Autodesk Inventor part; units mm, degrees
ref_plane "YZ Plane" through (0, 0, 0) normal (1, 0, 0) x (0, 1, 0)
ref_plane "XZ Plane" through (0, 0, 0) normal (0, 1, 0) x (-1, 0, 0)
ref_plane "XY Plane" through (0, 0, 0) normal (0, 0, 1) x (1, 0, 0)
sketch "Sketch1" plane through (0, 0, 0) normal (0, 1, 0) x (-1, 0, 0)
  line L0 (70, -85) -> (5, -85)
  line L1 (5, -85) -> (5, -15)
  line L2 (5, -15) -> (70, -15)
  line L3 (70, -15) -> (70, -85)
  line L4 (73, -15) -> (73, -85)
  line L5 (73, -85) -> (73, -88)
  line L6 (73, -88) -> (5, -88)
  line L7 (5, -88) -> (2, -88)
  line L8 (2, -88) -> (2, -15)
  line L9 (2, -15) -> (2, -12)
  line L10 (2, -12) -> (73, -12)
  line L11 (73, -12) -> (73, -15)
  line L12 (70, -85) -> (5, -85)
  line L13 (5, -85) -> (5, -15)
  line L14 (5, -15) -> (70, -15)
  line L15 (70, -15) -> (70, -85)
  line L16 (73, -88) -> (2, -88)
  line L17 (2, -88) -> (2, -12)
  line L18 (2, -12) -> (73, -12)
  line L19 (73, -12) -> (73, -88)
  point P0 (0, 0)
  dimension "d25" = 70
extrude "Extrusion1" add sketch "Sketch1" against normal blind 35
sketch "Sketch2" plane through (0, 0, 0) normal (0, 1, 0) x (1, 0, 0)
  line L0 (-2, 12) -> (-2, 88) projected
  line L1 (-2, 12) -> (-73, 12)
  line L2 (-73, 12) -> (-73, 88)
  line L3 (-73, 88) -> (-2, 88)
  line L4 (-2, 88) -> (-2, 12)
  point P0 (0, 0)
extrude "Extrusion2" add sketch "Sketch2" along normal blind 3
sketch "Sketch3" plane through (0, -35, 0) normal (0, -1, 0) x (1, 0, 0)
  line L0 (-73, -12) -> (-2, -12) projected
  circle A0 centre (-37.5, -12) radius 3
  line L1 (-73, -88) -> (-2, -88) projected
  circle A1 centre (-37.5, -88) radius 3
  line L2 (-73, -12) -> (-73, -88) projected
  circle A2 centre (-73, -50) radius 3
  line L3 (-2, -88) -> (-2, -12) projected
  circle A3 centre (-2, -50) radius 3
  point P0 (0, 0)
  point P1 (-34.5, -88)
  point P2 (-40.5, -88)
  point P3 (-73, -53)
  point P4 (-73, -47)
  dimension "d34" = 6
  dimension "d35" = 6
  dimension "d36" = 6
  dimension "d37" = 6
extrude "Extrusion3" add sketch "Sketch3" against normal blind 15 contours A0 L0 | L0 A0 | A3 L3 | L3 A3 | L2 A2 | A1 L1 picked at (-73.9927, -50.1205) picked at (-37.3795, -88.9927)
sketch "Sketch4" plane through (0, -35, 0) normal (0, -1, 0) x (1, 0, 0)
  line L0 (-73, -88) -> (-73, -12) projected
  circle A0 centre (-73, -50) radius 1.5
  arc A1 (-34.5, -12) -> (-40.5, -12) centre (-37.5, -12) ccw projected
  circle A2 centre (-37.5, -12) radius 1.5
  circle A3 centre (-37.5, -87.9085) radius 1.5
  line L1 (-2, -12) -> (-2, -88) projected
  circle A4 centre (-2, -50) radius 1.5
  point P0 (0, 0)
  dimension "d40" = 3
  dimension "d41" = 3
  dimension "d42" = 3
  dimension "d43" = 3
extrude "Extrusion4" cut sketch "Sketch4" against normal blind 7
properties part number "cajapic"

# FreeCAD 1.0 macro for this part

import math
import FreeCAD as App
import Part
import Sketcher

V = App.Vector

doc = App.newDocument("Part")
body = doc.addObject("PartDesign::Body", "Body")

# Sketch on XZ plane
sketch1 = body.newObject("Sketcher::SketchObject", "Sketch")
sketch1.AttachmentSupport = (doc.getObject("XZ_Plane"), [""])
sketch1.MapMode = "FlatFace"
sketch1.addGeometry([
    Part.LineSegment(V(-73, -88, 0), V(-73, -12, 0)),  # 0
    Part.LineSegment(V(-73, -12, 0), V(-2, -12, 0)),  # 1
    Part.LineSegment(V(-2, -12, 0), V(-2, -88, 0)),  # 2
    Part.LineSegment(V(-2, -88, 0), V(-73, -88, 0)),  # 3
    Part.LineSegment(V(-70, -15, 0), V(-70, -85, 0)),  # 4
    Part.LineSegment(V(-70, -85, 0), V(-5, -85, 0)),  # 5
    Part.LineSegment(V(-5, -85, 0), V(-5, -15, 0)),  # 6
    Part.LineSegment(V(-5, -15, 0), V(-70, -15, 0)),  # 7
], False)
sketch1.addConstraint([
    Sketcher.Constraint("Coincident", 0, 2, 1, 1),
    Sketcher.Constraint("Coincident", 1, 2, 2, 1),
    Sketcher.Constraint("Coincident", 2, 2, 3, 1),
    Sketcher.Constraint("Coincident", 3, 2, 0, 1),
    Sketcher.Constraint("Coincident", 4, 2, 5, 1),
    Sketcher.Constraint("Coincident", 5, 2, 6, 1),
    Sketcher.Constraint("Coincident", 6, 2, 7, 1),
    Sketcher.Constraint("Coincident", 7, 2, 4, 1),
    Sketcher.Constraint("Vertical", 0),
    Sketcher.Constraint("Horizontal", 1),
    Sketcher.Constraint("Vertical", 2),
    Sketcher.Constraint("Horizontal", 3),
    Sketcher.Constraint("Vertical", 4),
    Sketcher.Constraint("Horizontal", 5),
    Sketcher.Constraint("Vertical", 6),
    Sketcher.Constraint("Horizontal", 7),
    Sketcher.Constraint("DistanceY", 4, 2, 4, 1, 70.0),
    Sketcher.Constraint("DistanceX", 4, 2, -1, 1, 70.0),
    Sketcher.Constraint("DistanceX", 1, 1, 1, 2, 71.0),
    Sketcher.Constraint("DistanceX", 5, 1, 5, 2, 65.0),
    Sketcher.Constraint("DistanceY", 0, 1, 0, 2, 76.0),
    Sketcher.Constraint("DistanceX", 0, 2, -1, 1, 73.0),
    Sketcher.Constraint("DistanceY", 0, 2, -1, 1, 12.0),
    Sketcher.Constraint("DistanceY", 4, 2, -1, 1, 85.0),
])
pad1 = body.newObject("PartDesign::Pad", "Pad")
pad1.Profile = sketch1
pad1.Length = 35

# Sketch on XZ plane
sketch2 = body.newObject("Sketcher::SketchObject", "Sketch001")
sketch2.AttachmentSupport = (doc.getObject("XZ_Plane"), [""])
sketch2.MapMode = "FlatFace"
sketch2.addGeometry([
    Part.LineSegment(V(-73, -12, 0), V(-2, -12, 0)),
    Part.LineSegment(V(-2, -12, 0), V(-2, -88, 0)),
    Part.LineSegment(V(-2, -88, 0), V(-73, -88, 0)),
    Part.LineSegment(V(-73, -88, 0), V(-73, -12, 0)),
], False)
sketch2.addConstraint([
    Sketcher.Constraint("Coincident", 0, 2, 1, 1),
    Sketcher.Constraint("Coincident", 1, 2, 2, 1),
    Sketcher.Constraint("Coincident", 2, 2, 3, 1),
    Sketcher.Constraint("Coincident", 3, 2, 0, 1),
    Sketcher.Constraint("Horizontal", 0),
    Sketcher.Constraint("Vertical", 1),
    Sketcher.Constraint("Horizontal", 2),
    Sketcher.Constraint("Vertical", 3),
    Sketcher.Constraint("DistanceX", 0, 1, 0, 2, 71.0),
    Sketcher.Constraint("DistanceY", 1, 2, 1, 1, 76.0),
    Sketcher.Constraint("DistanceX", 0, 2, -1, 1, 2.0),
    Sketcher.Constraint("DistanceY", 0, 2, -1, 1, 12.0),
])
pad2 = body.newObject("PartDesign::Pad", "Pad001")
pad2.Profile = sketch2
pad2.Length = 3
pad2.Reversed = True

# Sketch on XZ plane
sketch3 = body.newObject("Sketcher::SketchObject", "Sketch002")
sketch3.AttachmentSupport = (doc.getObject("XZ_Plane"), [""])
sketch3.MapMode = "FlatFace"
sketch3.AttachmentOffset = App.Placement(V(0, 0, 35), App.Rotation())
sketch3.addGeometry([
    Part.Circle(V(-37.5, -12, 0), V(0, 0, 1), 3),  # 0
    Part.Circle(V(-2, -50, 0), V(0, 0, 1), 3),  # 1
    Part.LineSegment(V(-73, -53, 0), V(-73, -47, 0)),  # 2
    Part.ArcOfCircle(Part.Circle(V(-73, -50, 0), V(0, 0, 1), 3), math.radians(90), math.radians(270)),  # 3
    Part.ArcOfCircle(Part.Circle(V(-37.5, -88, 0), V(0, 0, 1), 3), math.radians(180), math.radians(360)),  # 4
    Part.LineSegment(V(-34.5, -88, 0), V(-40.5, -88, 0)),  # 5
], False)
sketch3.addConstraint([
    Sketcher.Constraint("Coincident", 2, 1, 3, 2),
    Sketcher.Constraint("Coincident", 3, 1, 2, 2),
    Sketcher.Constraint("Coincident", 4, 1, 5, 2),
    Sketcher.Constraint("Coincident", 5, 1, 4, 2),
    Sketcher.Constraint("Vertical", 2),
    Sketcher.Constraint("Horizontal", 5),
    Sketcher.Constraint("Equal", 0, 1),
    Sketcher.Constraint("Equal", 1, 3),
    Sketcher.Constraint("Equal", 3, 4),
    Sketcher.Constraint("Horizontal", 1, 3, 3, 3),
    Sketcher.Constraint("Vertical", 0, 3, 4, 3),
    Sketcher.Constraint("Vertical", 3, 3, 2, 1),
    Sketcher.Constraint("Diameter", 0, 6.0),
    Sketcher.Constraint("DistanceY", 0, 3, -1, 1, 12.0),
    Sketcher.Constraint("DistanceX", 1, 3, -1, 1, 2.0),
    Sketcher.Constraint("DistanceY", 1, 3, -1, 1, 50.0),
    Sketcher.Constraint("DistanceX", 3, 3, -1, 1, 73.0),
    Sketcher.Constraint("DistanceY", 4, 3, -1, 1, 88.0),
    Sketcher.Constraint("DistanceY", 4, 1, -1, 1, 88.0),
    Sketcher.Constraint("DistanceX", 0, 3, -1, 1, 37.5),
])
pad3 = body.newObject("PartDesign::Pad", "Pad002")
pad3.Profile = sketch3
pad3.Length = 15
pad3.Reversed = True

# Sketch on XZ plane
sketch4 = body.newObject("Sketcher::SketchObject", "Sketch003")
sketch4.AttachmentSupport = (doc.getObject("XZ_Plane"), [""])
sketch4.MapMode = "FlatFace"
sketch4.AttachmentOffset = App.Placement(V(0, 0, 35), App.Rotation())
sketch4.addGeometry([
    Part.Circle(V(-73, -50, 0), V(0, 0, 1), 1.5),
    Part.Circle(V(-37.5, -12, 0), V(0, 0, 1), 1.5),
    Part.Circle(V(-37.5, -87.9, 0), V(0, 0, 1), 1.5),
    Part.Circle(V(-2, -50, 0), V(0, 0, 1), 1.5),
], False)
sketch4.addConstraint([
    Sketcher.Constraint("Equal", 0, 1),
    Sketcher.Constraint("Equal", 1, 2),
    Sketcher.Constraint("Equal", 2, 3),
    Sketcher.Constraint("Horizontal", 0, 3, 3, 3),
    Sketcher.Constraint("Vertical", 1, 3, 2, 3),
    Sketcher.Constraint("Diameter", 0, 3.0),
    Sketcher.Constraint("DistanceX", 0, 3, -1, 1, 73.0),
    Sketcher.Constraint("DistanceY", 0, 3, -1, 1, 50.0),
    Sketcher.Constraint("DistanceY", 1, 3, -1, 1, 12.0),
    Sketcher.Constraint("DistanceX", 3, 3, -1, 1, 2.0),
    Sketcher.Constraint("DistanceX", 1, 3, -1, 1, 37.5),
    Sketcher.Constraint("DistanceY", 2, 3, -1, 1, 87.9085),
])
pocket1 = body.newObject("PartDesign::Pocket", "Pocket")
pocket1.Profile = sketch4
pocket1.Length = 7

doc.recompute()
